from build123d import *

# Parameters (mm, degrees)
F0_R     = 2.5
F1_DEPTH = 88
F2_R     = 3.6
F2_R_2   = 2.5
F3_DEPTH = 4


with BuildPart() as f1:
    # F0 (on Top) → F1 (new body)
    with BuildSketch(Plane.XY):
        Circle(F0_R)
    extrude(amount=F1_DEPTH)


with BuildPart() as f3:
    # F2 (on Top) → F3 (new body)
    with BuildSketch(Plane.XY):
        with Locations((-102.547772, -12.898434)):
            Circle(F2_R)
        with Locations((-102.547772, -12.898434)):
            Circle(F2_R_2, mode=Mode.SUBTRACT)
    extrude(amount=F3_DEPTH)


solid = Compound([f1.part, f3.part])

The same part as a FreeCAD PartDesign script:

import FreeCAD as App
import Part
import Sketcher

V = App.Vector

doc = App.newDocument("Part")
body = doc.addObject("PartDesign::Body", "Body")

# Sketch on XY plane
sketch1 = body.newObject("Sketcher::SketchObject", "Sketch")
sketch1.AttachmentSupport = (doc.getObject("XY_Plane"), [""])
sketch1.MapMode = "FlatFace"
sketch1.addGeometry(Part.Circle(V(0, 0, 0), V(0, 0, 1), 2.5), False)
sketch1.addConstraint(Sketcher.Constraint("Coincident", 0, 3, -1, 1))
sketch1.addConstraint(Sketcher.Constraint("Diameter", 0, 5.0))
pad1 = body.newObject("PartDesign::Pad", "Pad")
pad1.Profile = sketch1
pad1.Length = 88
body2 = doc.addObject("PartDesign::Body", "Body001")

# Sketch on XY plane
sketch2 = body2.newObject("Sketcher::SketchObject", "Sketch001")
sketch2.AttachmentSupport = (doc.getObject("XY_Plane001"), [""])
sketch2.MapMode = "FlatFace"
sketch2.addGeometry(Part.Circle(V(-102.5, -12.9, 0), V(0, 0, 1), 3.6), False)
sketch2.addGeometry(Part.Circle(V(-102.5, -12.9, 0), V(0, 0, 1), 2.5), False)
sketch2.addConstraint(Sketcher.Constraint("Coincident", 1, 3, 0, 3))
sketch2.addConstraint(Sketcher.Constraint("Diameter", 1, 5.0))
sketch2.addConstraint(Sketcher.Constraint("Diameter", 0, 7.2))
sketch2.addConstraint(Sketcher.Constraint("DistanceX", 0, 3, -1, 1, 102.547772))
sketch2.addConstraint(Sketcher.Constraint("DistanceY", 0, 3, -1, 1, 12.898434))
pad2 = body2.newObject("PartDesign::Pad", "Pad001")
pad2.Profile = sketch2
pad2.Length = 4

doc.recompute()
